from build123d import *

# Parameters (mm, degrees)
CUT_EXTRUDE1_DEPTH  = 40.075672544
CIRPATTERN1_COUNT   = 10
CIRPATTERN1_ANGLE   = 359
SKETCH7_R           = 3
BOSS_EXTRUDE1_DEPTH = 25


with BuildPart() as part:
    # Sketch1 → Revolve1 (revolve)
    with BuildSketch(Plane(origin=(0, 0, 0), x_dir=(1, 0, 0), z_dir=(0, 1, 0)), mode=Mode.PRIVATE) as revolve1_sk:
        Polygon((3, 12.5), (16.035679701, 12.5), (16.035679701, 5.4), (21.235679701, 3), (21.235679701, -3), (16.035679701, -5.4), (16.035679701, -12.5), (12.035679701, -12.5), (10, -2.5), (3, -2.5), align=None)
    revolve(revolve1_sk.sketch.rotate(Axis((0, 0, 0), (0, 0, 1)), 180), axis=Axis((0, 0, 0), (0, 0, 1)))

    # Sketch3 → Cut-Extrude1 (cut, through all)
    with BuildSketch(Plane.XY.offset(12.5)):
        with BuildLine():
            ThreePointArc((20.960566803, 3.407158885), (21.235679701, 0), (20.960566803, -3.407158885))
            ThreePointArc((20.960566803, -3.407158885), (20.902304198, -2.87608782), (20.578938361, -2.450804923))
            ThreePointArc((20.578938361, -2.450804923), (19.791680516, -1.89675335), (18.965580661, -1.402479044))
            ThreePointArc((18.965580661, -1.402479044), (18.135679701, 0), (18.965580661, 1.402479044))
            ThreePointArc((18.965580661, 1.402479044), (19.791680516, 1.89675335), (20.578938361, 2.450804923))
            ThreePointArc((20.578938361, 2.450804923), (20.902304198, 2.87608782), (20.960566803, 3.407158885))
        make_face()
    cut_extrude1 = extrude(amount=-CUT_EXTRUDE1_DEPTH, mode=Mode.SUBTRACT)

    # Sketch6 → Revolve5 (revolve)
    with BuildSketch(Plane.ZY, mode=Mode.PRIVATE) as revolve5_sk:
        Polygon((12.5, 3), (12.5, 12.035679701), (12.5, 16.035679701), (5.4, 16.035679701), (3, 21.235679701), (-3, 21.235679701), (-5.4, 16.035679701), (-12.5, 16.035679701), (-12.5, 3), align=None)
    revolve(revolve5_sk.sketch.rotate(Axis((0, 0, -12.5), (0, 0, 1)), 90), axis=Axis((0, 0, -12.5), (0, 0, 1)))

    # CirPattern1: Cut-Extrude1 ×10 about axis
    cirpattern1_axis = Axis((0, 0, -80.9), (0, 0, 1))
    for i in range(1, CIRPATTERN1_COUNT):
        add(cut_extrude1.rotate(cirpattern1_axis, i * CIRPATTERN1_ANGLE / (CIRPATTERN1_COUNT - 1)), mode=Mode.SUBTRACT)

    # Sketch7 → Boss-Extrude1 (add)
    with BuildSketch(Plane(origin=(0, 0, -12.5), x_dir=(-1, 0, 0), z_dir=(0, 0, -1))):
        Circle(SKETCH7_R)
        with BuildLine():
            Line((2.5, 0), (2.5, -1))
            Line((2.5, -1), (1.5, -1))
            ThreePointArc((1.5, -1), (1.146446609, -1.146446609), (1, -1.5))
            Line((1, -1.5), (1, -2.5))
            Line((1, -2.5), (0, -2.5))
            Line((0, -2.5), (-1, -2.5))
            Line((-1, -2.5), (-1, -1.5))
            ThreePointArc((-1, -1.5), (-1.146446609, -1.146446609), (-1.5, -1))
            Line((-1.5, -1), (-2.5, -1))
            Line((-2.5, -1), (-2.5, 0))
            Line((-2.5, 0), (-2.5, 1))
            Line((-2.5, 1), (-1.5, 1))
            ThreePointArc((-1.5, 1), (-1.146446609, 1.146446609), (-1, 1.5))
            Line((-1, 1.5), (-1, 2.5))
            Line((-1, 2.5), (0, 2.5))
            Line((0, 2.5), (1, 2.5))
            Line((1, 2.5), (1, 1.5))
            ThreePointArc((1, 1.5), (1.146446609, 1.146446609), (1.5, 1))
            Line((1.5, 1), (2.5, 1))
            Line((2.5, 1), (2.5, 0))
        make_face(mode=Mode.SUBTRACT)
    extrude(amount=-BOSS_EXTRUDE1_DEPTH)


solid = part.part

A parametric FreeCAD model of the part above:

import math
import FreeCAD as App
import Part
import Sketcher
from FreeCAD import Vector
Q = App.Units.Quantity


def add_polygon(sketch, points):
    """Adds a closed chain of lines whose ends are joined by coincident constraints."""
    first, n = sketch.GeometryCount, len(points)
    for a, b in zip(points, points[1:] + points[:1]):
        sketch.addGeometry(Part.LineSegment(App.Vector(*a, 0), App.Vector(*b, 0)), False)
    for i in range(n):
        sketch.addConstraint(Sketcher.Constraint("Coincident", first + i, 2, first + (i + 1) % n, 1))

doc = App.newDocument("Part")
params = doc.addObject("Spreadsheet::Sheet", "Params")
for row, (alias, value) in enumerate([
    ("sketch1_width", "7 mm"),
    ("sketch1_width2", "4 mm"),
    ("sketch1_height", "15 mm"),
    ("sketch1_height2", "6 mm"),
    ("sketch1_height3", "7.1 mm"),
    ("revolution_angle", "360 deg"),
    ("sketch2_radius", "1 mm"),
    ("sketch2_radius2", "13 mm"),
    ("sketch2_radius3", "1.6 mm"),
    ("sketch3_height", "6 mm"),
    ("sketch3_height2", "25 mm"),
    ("sketch3_height3", "7.1 mm"),
    ("revolution2_angle", "360 deg"),
    ("sketch4_diameter", "6 mm"),
    ("sketch4_radius", "0.5 mm"),
    ("sketch4_width", "1 mm"),
    ("sketch4_width2", "2 mm"),
    ("pad1_length", "25 mm"),
], start=1):
    params.set(f"A{row}", alias)
    params.set(f"B{row}", "=" + value)
    params.setAlias(f"B{row}", alias)

body = doc.addObject("PartDesign::Body", "Body")

sketch1 = body.newObject("Sketcher::SketchObject", "Sketch")
sketch1.AttachmentSupport = (doc.getObject("XZ_Plane"), [""])
sketch1.MapMode = "FlatFace"
add_polygon(sketch1, [(16, -12.5), (3, -12.5), (3, 2.5), (10, 2.5), (12, 12.5), (16, 12.5), (16, 5.4), (21.2, 3), (21.2, -3), (16, -5.4)])
sketch1.addConstraint([
    Sketcher.Constraint("Horizontal", 0),
    Sketcher.Constraint("Vertical", 1),
    Sketcher.Constraint("Horizontal", 2),
    Sketcher.Constraint("Horizontal", 4),
    Sketcher.Constraint("Vertical", 5),
    Sketcher.Constraint("Vertical", 7),
    Sketcher.Constraint("Vertical", 9),
    Sketcher.Constraint("Symmetric", 5, 2, 8, 2, -1),
    Sketcher.Constraint("Equal", 5, 9),
    Sketcher.Constraint("Equal", 6, 8),
    Sketcher.Constraint("DistanceX", 2, 1, 2, 2, Q("7 mm")),
    Sketcher.Constraint("DistanceX", 4, 1, 4, 2, Q("4 mm")),
    Sketcher.Constraint("DistanceY", 1, 1, 1, 2, Q("15 mm")),
    Sketcher.Constraint("DistanceY", 7, 2, 7, 1, Q("6 mm")),
    Sketcher.Constraint("DistanceY", 5, 2, 5, 1, Q("7.1 mm")),
    Sketcher.Constraint("DistanceX", -1, 1, 0, 2, Q("3 mm")),
    Sketcher.Constraint("DistanceY", 2, 2, 3, 2, Q("10 mm")),
    Sketcher.Constraint("DistanceX", 5, 2, 6, 2, Q("5.2 mm")),
    Sketcher.Constraint("DistanceX", 0, 2, 0, 1, Q("13.03568 mm")),
])
sketch1.setExpression("Constraints[20]", "Params.sketch1_width")
sketch1.setExpression("Constraints[21]", "Params.sketch1_width2")
sketch1.setExpression("Constraints[22]", "Params.sketch1_height")
sketch1.setExpression("Constraints[23]", "Params.sketch1_height2")
sketch1.setExpression("Constraints[24]", "Params.sketch1_height3")
revolution = body.newObject("PartDesign::Revolution", "Revolution")
revolution.Profile = sketch1
revolution.ReferenceAxis = (sketch1, ["V_Axis"])
revolution.setExpression("Angle", "Params.revolution_angle")

sketch2 = body.newObject("Sketcher::SketchObject", "Sketch001")
sketch2.AttachmentSupport = (doc.getObject("XY_Plane"), [""])
sketch2.MapMode = "FlatFace"
sketch2.AttachmentOffset = App.Placement(Vector(0, 0, 12.5), App.Rotation())
sketch2.addGeometry([
    Part.ArcOfCircle(Part.Circle(Vector(0, 0, 0), Vector(0, 0, 1), 21.2), math.radians(-9.23), math.radians(9.23)),
    Part.ArcOfCircle(Part.Circle(Vector(20, 3.2, 0), Vector(0, 0, 1), 1), math.radians(-53), math.radians(9)),
    Part.ArcOfCircle(Part.Circle(Vector(12.7, 12.8, 0), Vector(0, 0, 1), 13), math.radians(-61.23), math.radians(-52.74)),
    Part.ArcOfCircle(Part.Circle(Vector(19.7, 0, 0), Vector(0, 0, 1), 1.6), math.radians(119), math.radians(241)),
    Part.ArcOfCircle(Part.Circle(Vector(12.7, -12.8, 0), Vector(0, 0, 1), 13), math.radians(52.74), math.radians(61.23)),
    Part.ArcOfCircle(Part.Circle(Vector(20, -3.2, 0), Vector(0, 0, 1), 1), math.radians(-9), math.radians(53)),
], False)
sketch2.addConstraint([
    Sketcher.Constraint("Tangent", 0, 2, 1, 2),
    Sketcher.Constraint("Tangent", 1, 1, 2, 2),
    Sketcher.Constraint("Tangent", 2, 1, 3, 1),
    Sketcher.Constraint("Tangent", 3, 2, 4, 2),
    Sketcher.Constraint("Tangent", 4, 1, 5, 2),
    Sketcher.Constraint("Tangent", 5, 1, 0, 1),
    Sketcher.Constraint("Coincident", 0, 3, -1, 1),
    Sketcher.Constraint("Equal", 2, 4),
    Sketcher.Constraint("Equal", 1, 5),
    Sketcher.Constraint("Symmetric", 2, 3, 4, 3, -1),
    Sketcher.Constraint("Radius", 1, Q("1 mm")),
    Sketcher.Constraint("Radius", 2, Q("13 mm")),
    Sketcher.Constraint("Radius", 3, Q("1.6 mm")),
    Sketcher.Constraint("Radius", 0, Q("21.23568 mm")),
    Sketcher.Constraint("DistanceX", 2, 1, 3, 3, Q("0.770099 mm")),
    Sketcher.Constraint("DistanceX", -1, 1, 3, 3, Q("19.73568 mm")),
])
sketch2.setExpression("Constraints[10]", "Params.sketch2_radius")
sketch2.setExpression("Constraints[11]", "Params.sketch2_radius2")
sketch2.setExpression("Constraints[12]", "Params.sketch2_radius3")
pocket1 = body.newObject("PartDesign::Pocket", "Pocket")
pocket1.Profile = sketch2
pocket1.Type = "ThroughAll"

sketch3 = body.newObject("Sketcher::SketchObject", "Sketch002")
sketch3.AttachmentSupport = (doc.getObject("YZ_Plane"), [""])
sketch3.MapMode = "FlatFace"
add_polygon(sketch3, [(3, 12), (16, 12), (16, 5), (21, 3), (21, -3), (16, -5), (16, -12), (3, -12)])
sketch3.addConstraint([
    Sketcher.Constraint("Horizontal", 0),
    Sketcher.Constraint("Vertical", 1),
    Sketcher.Constraint("Vertical", 3),
    Sketcher.Constraint("Vertical", 5),
    Sketcher.Constraint("Horizontal", 6),
    Sketcher.Constraint("Vertical", 7),
    Sketcher.Constraint("Symmetric", 1, 2, 4, 2, -1),
    Sketcher.Constraint("Equal", 1, 5),
    Sketcher.Constraint("Equal", 2, 4),
    Sketcher.Constraint("DistanceY", 3, 2, 3, 1, Q("6 mm")),
    Sketcher.Constraint("DistanceY", 7, 1, 7, 2, Q("25 mm")),
    Sketcher.Constraint("DistanceY", 1, 2, 1, 1, Q("7.1 mm")),
    Sketcher.Constraint("DistanceX", -1, 1, 6, 2, Q("3 mm")),
    Sketcher.Constraint("DistanceX", 1, 2, 2, 2, Q("5.2 mm")),
    Sketcher.Constraint("DistanceX", 0, 1, 0, 2, Q("13.03568 mm")),
])
sketch3.setExpression("Constraints[17]", "Params.sketch3_height")
sketch3.setExpression("Constraints[18]", "Params.sketch3_height2")
sketch3.setExpression("Constraints[19]", "Params.sketch3_height3")
revolution2 = body.newObject("PartDesign::Revolution", "Revolution001")
revolution2.Profile = sketch3
revolution2.ReferenceAxis = (sketch3, ["V_Axis"])
revolution2.setExpression("Angle", "Params.revolution2_angle")
doc.recompute()

polarpattern = body.newObject("PartDesign::PolarPattern", "PolarPattern")
polarpattern.Originals = [pocket1]
polarpattern.Axis = (doc.getObject("Z_Axis"), [""])
polarpattern.Angle = 359
polarpattern.Occurrences = 10
body.Tip = polarpattern

sketch4 = body.newObject("Sketcher::SketchObject", "Sketch003")
sketch4.AttachmentSupport = (doc.getObject("XY_Plane"), [""])
sketch4.MapMode = "FlatFace"
sketch4.AttachmentOffset = App.Placement(Vector(0, 0, -12.5), App.Rotation())
sketch4.addGeometry([
    Part.Circle(Vector(0, 0, 0), Vector(0, 0, 1), 3),
    Part.LineSegment(Vector(-2.5, 1, 0), Vector(-2.5, -1, 0)),
    Part.LineSegment(Vector(-2.5, -1, 0), Vector(-1.5, -1, 0)),
    Part.ArcOfCircle(Part.Circle(Vector(-1.5, -1.5, 0), Vector(0, 0, 1), 0.5), math.radians(0), math.radians(90)),
    Part.LineSegment(Vector(-1, -1.5, 0), Vector(-1, -2.5, 0)),
    Part.LineSegment(Vector(-1, -2.5, 0), Vector(1, -2.5, 0)),
    Part.LineSegment(Vector(1, -2.5, 0), Vector(1, -1.5, 0)),
    Part.ArcOfCircle(Part.Circle(Vector(1.5, -1.5, 0), Vector(0, 0, 1), 0.5), math.radians(90), math.radians(180)),
    Part.LineSegment(Vector(1.5, -1, 0), Vector(2.5, -1, 0)),
    Part.LineSegment(Vector(2.5, -1, 0), Vector(2.5, 1, 0)),
    Part.LineSegment(Vector(2.5, 1, 0), Vector(1.5, 1, 0)),
    Part.ArcOfCircle(Part.Circle(Vector(1.5, 1.5, 0), Vector(0, 0, 1), 0.5), math.radians(180), math.radians(270)),
    Part.LineSegment(Vector(1, 1.5, 0), Vector(1, 2.5, 0)),
    Part.LineSegment(Vector(1, 2.5, 0), Vector(-1, 2.5, 0)),
    Part.LineSegment(Vector(-1, 2.5, 0), Vector(-1, 1.5, 0)),
    Part.ArcOfCircle(Part.Circle(Vector(-1.5, 1.5, 0), Vector(0, 0, 1), 0.5), math.radians(-90), math.radians(0)),
    Part.LineSegment(Vector(-1.5, 1, 0), Vector(-2.5, 1, 0)),
], False)
sketch4.addConstraint([
    Sketcher.Constraint("Coincident", 1, 2, 2, 1),
    Sketcher.Constraint("Tangent", 2, 2, 3, 2),
    Sketcher.Constraint("Tangent", 3, 1, 4, 1),
    Sketcher.Constraint("Coincident", 4, 2, 5, 1),
    Sketcher.Constraint("Coincident", 5, 2, 6, 1),
    Sketcher.Constraint("Tangent", 6, 2, 7, 2),
    Sketcher.Constraint("Tangent", 7, 1, 8, 1),
    Sketcher.Constraint("Coincident", 8, 2, 9, 1),
    Sketcher.Constraint("Coincident", 9, 2, 10, 1),
    Sketcher.Constraint("Tangent", 10, 2, 11, 2),
    Sketcher.Constraint("Tangent", 11, 1, 12, 1),
    Sketcher.Constraint("Coincident", 12, 2, 13, 1),
    Sketcher.Constraint("Coincident", 13, 2, 14, 1),
    Sketcher.Constraint("Tangent", 14, 2, 15, 2),
    Sketcher.Constraint("Tangent", 15, 1, 16, 1),
    Sketcher.Constraint("Coincident", 16, 2, 1, 1),
    Sketcher.Constraint("Vertical", 1),
    Sketcher.Constraint("Horizontal", 2),
    Sketcher.Constraint("Vertical", 4),
    Sketcher.Constraint("Horizontal", 5),
    Sketcher.Constraint("Vertical", 6),
    Sketcher.Constraint("Horizontal", 8),
    Sketcher.Constraint("Vertical", 9),
    Sketcher.Constraint("Horizontal", 10),
    Sketcher.Constraint("Vertical", 12),
    Sketcher.Constraint("Horizontal", 13),
    Sketcher.Constraint("Vertical", 14),
    Sketcher.Constraint("Horizontal", 16),
    Sketcher.Constraint("Coincident", 0, 3, -1, 1),
    Sketcher.Constraint("Equal", 3, 7),
    Sketcher.Constraint("Equal", 7, 11),
    Sketcher.Constraint("Equal", 11, 15),
    Sketcher.Constraint("Symmetric", 3, 3, 11, 3, -1, 1),
    Sketcher.Constraint("Symmetric", 7, 3, 15, 3, -1, 1),
    Sketcher.Constraint("Symmetric", 3, 3, 7, 3, -2),
    Sketcher.Constraint("Equal", 2, 8),
    Sketcher.Constraint("Equal", 13, 1),
    Sketcher.Constraint("Equal", 16, 4),
    Sketcher.Constraint("Equal", 6, 12),
    Sketcher.Constraint("Diameter", 0, Q("6 mm")),
    Sketcher.Constraint("Radius", 3, Q("0.5 mm")),
    Sketcher.Constraint("DistanceX", 2, 1, 2, 2, Q("1 mm")),
    Sketcher.Constraint("DistanceX", 5, 1, 5, 2, Q("2 mm")),
])
sketch4.setExpression("Constraints[39]", "Params.sketch4_diameter")
sketch4.setExpression("Constraints[40]", "Params.sketch4_radius")
sketch4.setExpression("Constraints[41]", "Params.sketch4_width")
sketch4.setExpression("Constraints[42]", "Params.sketch4_width2")
pad1 = body.newObject("PartDesign::Pad", "Pad")
pad1.Profile = sketch4
pad1.setExpression("Length", "Params.pad1_length")

doc.recompute()
